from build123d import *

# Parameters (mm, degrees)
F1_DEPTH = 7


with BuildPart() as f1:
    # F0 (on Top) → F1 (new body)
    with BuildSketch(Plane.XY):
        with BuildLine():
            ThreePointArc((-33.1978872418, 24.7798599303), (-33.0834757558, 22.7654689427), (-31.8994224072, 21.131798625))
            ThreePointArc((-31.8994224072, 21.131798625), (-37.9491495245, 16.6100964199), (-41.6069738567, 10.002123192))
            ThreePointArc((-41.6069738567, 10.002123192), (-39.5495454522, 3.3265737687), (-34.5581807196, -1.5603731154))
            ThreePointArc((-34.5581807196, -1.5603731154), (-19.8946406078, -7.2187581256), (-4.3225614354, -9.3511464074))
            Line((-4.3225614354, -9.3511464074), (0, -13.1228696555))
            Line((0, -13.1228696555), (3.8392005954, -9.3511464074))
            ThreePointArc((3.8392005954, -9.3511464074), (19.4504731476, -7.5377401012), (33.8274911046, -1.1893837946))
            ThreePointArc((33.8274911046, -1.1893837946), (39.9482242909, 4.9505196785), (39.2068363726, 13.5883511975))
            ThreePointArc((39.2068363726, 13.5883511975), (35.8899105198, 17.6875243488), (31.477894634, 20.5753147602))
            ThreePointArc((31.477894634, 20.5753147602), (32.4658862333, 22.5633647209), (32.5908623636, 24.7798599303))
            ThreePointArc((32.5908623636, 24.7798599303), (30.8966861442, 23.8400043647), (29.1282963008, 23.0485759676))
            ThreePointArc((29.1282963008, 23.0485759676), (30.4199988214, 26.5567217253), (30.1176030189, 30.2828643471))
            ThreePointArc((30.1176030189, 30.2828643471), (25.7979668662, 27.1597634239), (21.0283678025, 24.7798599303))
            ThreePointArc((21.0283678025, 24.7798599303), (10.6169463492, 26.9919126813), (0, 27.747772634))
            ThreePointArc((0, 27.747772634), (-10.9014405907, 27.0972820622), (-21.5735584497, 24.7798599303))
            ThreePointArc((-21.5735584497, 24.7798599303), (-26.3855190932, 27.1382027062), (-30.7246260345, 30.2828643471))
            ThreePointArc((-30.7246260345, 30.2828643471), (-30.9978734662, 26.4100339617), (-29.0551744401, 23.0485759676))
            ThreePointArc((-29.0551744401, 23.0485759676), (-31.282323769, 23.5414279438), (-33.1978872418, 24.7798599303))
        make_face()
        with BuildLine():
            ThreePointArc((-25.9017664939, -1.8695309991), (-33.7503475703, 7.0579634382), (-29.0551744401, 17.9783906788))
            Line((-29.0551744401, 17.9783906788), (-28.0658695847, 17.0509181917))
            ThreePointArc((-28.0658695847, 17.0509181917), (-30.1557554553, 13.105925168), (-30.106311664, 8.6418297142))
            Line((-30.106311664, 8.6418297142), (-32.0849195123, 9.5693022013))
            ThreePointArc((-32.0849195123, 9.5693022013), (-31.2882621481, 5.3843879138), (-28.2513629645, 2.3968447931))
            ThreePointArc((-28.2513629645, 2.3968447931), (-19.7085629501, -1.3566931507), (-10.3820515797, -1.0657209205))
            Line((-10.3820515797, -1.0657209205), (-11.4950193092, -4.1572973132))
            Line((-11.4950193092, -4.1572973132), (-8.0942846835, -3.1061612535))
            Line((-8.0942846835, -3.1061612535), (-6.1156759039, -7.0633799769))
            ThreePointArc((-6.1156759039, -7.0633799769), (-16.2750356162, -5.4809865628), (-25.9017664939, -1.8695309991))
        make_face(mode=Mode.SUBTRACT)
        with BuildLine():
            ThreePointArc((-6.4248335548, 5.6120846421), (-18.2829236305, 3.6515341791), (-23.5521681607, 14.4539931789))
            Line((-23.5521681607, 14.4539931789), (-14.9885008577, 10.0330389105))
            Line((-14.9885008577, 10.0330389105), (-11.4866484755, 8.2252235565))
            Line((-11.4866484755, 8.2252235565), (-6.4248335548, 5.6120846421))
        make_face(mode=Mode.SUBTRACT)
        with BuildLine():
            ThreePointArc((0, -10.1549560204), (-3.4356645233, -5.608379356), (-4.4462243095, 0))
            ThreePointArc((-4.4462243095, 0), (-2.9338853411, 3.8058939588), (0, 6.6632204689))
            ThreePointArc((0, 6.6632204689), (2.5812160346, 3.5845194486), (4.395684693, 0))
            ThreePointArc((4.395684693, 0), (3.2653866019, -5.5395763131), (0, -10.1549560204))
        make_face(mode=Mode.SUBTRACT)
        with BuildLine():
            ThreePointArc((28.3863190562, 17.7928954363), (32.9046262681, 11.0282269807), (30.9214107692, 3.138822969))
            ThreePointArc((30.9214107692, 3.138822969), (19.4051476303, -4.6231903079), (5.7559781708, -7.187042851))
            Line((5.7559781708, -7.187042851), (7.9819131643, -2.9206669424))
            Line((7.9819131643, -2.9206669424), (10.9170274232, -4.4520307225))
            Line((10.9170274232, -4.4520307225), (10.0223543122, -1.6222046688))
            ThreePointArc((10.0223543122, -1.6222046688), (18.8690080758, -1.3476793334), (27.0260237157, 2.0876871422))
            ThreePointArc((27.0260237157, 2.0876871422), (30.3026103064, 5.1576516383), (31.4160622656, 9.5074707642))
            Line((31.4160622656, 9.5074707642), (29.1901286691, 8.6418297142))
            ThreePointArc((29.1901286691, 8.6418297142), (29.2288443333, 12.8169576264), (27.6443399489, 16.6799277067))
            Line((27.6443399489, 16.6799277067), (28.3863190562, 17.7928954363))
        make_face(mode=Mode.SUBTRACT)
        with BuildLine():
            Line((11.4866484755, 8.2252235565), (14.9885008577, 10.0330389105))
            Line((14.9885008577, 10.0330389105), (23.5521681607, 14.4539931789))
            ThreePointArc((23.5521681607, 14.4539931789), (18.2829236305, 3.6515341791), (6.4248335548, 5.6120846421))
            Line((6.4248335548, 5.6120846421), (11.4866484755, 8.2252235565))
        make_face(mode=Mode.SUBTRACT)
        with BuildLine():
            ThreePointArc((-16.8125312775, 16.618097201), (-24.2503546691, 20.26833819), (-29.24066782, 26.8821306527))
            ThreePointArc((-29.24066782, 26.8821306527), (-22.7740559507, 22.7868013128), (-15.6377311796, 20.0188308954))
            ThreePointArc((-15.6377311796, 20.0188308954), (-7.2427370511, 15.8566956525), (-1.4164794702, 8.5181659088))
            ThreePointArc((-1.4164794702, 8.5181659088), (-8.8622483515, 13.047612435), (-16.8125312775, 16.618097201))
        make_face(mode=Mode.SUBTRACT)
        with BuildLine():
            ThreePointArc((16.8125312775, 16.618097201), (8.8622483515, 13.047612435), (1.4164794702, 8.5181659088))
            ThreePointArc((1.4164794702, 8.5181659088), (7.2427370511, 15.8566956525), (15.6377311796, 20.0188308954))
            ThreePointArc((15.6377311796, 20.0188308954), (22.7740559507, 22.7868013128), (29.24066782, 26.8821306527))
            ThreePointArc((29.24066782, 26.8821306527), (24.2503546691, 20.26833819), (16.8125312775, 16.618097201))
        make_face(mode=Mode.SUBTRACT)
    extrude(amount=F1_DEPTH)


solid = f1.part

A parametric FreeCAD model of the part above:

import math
import FreeCAD as App
import Part
import Sketcher
Q = App.Units.Quantity

doc = App.newDocument("Part")
body = doc.addObject("PartDesign::Body", "Body")

# Sketch on XY plane
sketch1 = doc.addObject("Sketcher::SketchObject", "Sketch")
body.addObject(sketch1)
sketch1.AttachmentSupport = (doc.XY_Plane, [""])
sketch1.MapMode = "FlatFace"
sketch1.addGeometry(Part.ArcOfCircle(Part.Circle(App.Vector(-29.705596, 23.967767, 0), App.Vector(0, 0, 1), 3.585469), math.radians(166.909164), math.radians(232.275465)), False)
sketch1.addGeometry(Part.ArcOfCircle(Part.Circle(App.Vector(-24.404402, 4.796065, 0), App.Vector(0, 0, 1), 17.973077), math.radians(114.646195), math.radians(163.162477)), False)
sketch1.addGeometry(Part.ArcOfCircle(Part.Circle(App.Vector(-27.424256, 10.71846, 0), App.Vector(0, 0, 1), 14.200796), math.radians(-177.108579), math.radians(-120.156317)), False)
sketch1.addGeometry(Part.ArcOfCircle(Part.Circle(App.Vector(-2.965927, 58.480773, 0), App.Vector(0, 0, 1), 67.845484), math.radians(-117.752301), math.radians(-91.14576)), False)
sketch1.addGeometry(Part.LineSegment(App.Vector(-4.322561, -9.351146, 0), App.Vector(0, -13.12287, 0)), False)
sketch1.addGeometry(Part.LineSegment(App.Vector(0, -13.12287, 0), App.Vector(3.839201, -9.351146, 0)), False)
sketch1.addGeometry(Part.ArcOfCircle(Part.Circle(App.Vector(5.649076, 43.171934, 0), App.Vector(0, 0, 1), 52.554254), math.radians(-91.973555), math.radians(-57.576189)), False)
sketch1.addGeometry(Part.ArcOfCircle(Part.Circle(App.Vector(30.276646, 8.471138, 0), App.Vector(0, 0, 1), 10.292433), math.radians(-69.818468), math.radians(29.813746)), False)
sketch1.addGeometry(Part.ArcOfCircle(Part.Circle(App.Vector(24.47147, 5.056506, 0), App.Vector(0, 0, 1), 17.027137), math.radians(30.071038), math.radians(65.701797)), False)
sketch1.addGeometry(Part.ArcOfCircle(Part.Circle(App.Vector(27.129077, 23.976049, 0), App.Vector(0, 0, 1), 5.520617), math.radians(-38.025074), math.radians(8.372117)), False)
sketch1.addGeometry(Part.ArcOfCircle(Part.Circle(App.Vector(20.781118, 44.071129, 0), App.Vector(0, 0, 1), 22.619088), math.radians(-68.34404), math.radians(-58.525833)), False)
sketch1.addGeometry(Part.ArcOfCircle(Part.Circle(App.Vector(21.813868, 27.733631, 0), App.Vector(0, 0, 1), 8.686231), math.radians(-32.640471), math.radians(17.066399)), False)
sketch1.addGeometry(Part.ArcOfCircle(Part.Circle(App.Vector(8.860169, 55.135687, 0), App.Vector(0, 0, 1), 32.703843), math.radians(-68.156512), math.radians(-49.458544)), False)
sketch1.addGeometry(Part.ArcOfCircle(Part.Circle(App.Vector(-0.149081, -49.287951, 0), App.Vector(0, 0, 1), 77.035867), math.radians(74.043722), math.radians(89.889121)), False)
sketch1.addGeometry(Part.ArcOfCircle(Part.Circle(App.Vector(-1.24137, -43.12112, 0), App.Vector(0, 0, 1), 70.879764), math.radians(88.996485), math.radians(106.66974)), False)
sketch1.addGeometry(Part.ArcOfCircle(Part.Circle(App.Vector(-10.256509, 53.95949, 0), App.Vector(0, 0, 1), 31.297386), math.radians(-130.842964), math.radians(-111.198322)), False)
sketch1.addGeometry(Part.ArcOfCircle(Part.Circle(App.Vector(-24.539533, 27.900421, 0), App.Vector(0, 0, 1), 6.628078), math.radians(158.933752), math.radians(227.055488)), False)
sketch1.addGeometry(Part.ArcOfCircle(Part.Circle(App.Vector(-28.799517, 29.482426, 0), App.Vector(0, 0, 1), 6.438928), math.radians(-133.085617), math.radians(-92.275525)), False)
sketch1.addGeometry(Part.ArcOfCircle(Part.Circle(App.Vector(-3.480122, 43.261541, 0), App.Vector(0, 0, 1), 50.393887), math.radians(-116.418724), math.radians(-92.997885)), False)
sketch1.addGeometry(Part.ArcOfCircle(Part.Circle(App.Vector(-22.763091, 8.803602, 0), App.Vector(0, 0, 1), 11.125064), math.radians(124.442385), math.radians(253.61284)), False)
sketch1.addGeometry(Part.LineSegment(App.Vector(-29.055174, 17.978391, 0), App.Vector(-28.06587, 17.050918, 0)), False)
sketch1.addGeometry(Part.ArcOfCircle(Part.Circle(App.Vector(-21.357497, 10.971052, 0), App.Vector(0, 0, 1), 9.053565), math.radians(137.813664), math.radians(194.908212)), False)
sketch1.addGeometry(Part.LineSegment(App.Vector(-30.106312, 8.64183, 0), App.Vector(-32.08492, 9.569302, 0)), False)
sketch1.addGeometry(Part.ArcOfCircle(Part.Circle(App.Vector(-24.987287, 8.752152, 0), App.Vector(0, 0, 1), 7.144517), math.radians(173.432452), math.radians(242.81504)), False)
sketch1.addGeometry(Part.ArcOfCircle(Part.Circle(App.Vector(-15.688089, 19.391824, 0), App.Vector(0, 0, 1), 21.134455), math.radians(-126.473089), math.radians(-75.459694)), False)
sketch1.addGeometry(Part.LineSegment(App.Vector(-10.382052, -1.065721, 0), App.Vector(-11.495019, -4.157297, 0)), False)
sketch1.addGeometry(Part.LineSegment(App.Vector(-11.495019, -4.157297, 0), App.Vector(-8.094285, -3.106161, 0)), False)
sketch1.addGeometry(Part.LineSegment(App.Vector(-8.094285, -3.106161, 0), App.Vector(-6.115676, -7.06338, 0)), False)
sketch1.addGeometry(Part.ArcOfCircle(Part.Circle(App.Vector(-9.343193, -0.081814, 0), App.Vector(0, 0, 1), 13.739121), math.radians(-47.152998), math.radians(0.341186)), False)
sketch1.addGeometry(Part.ArcOfCircle(Part.Circle(App.Vector(7.801403, -0.688366, 0), App.Vector(0, 0, 1), 12.266957), math.radians(176.783133), math.radians(230.508115)), False)
sketch1.addGeometry(Part.ArcOfCircle(Part.Circle(App.Vector(5.229637, -1.64145, 0), App.Vector(0, 0, 1), 9.814104), math.radians(122.199541), math.radians(170.371793)), False)
sketch1.addGeometry(Part.ArcOfCircle(Part.Circle(App.Vector(-12.086721, -6.091826, 0), App.Vector(0, 0, 1), 17.572138), math.radians(20.284096), math.radians(46.541075)), False)
sketch1.addGeometry(Part.LineSegment(App.Vector(27.64434, 16.679928, 0), App.Vector(28.386319, 17.792895, 0)), False)
sketch1.addGeometry(Part.ArcOfCircle(Part.Circle(App.Vector(23.021878, 9.318554, 0), App.Vector(0, 0, 1), 10.029541), math.radians(-38.035743), math.radians(57.665309)), False)
sketch1.addGeometry(Part.ArcOfCircle(Part.Circle(App.Vector(6.374478, 27.13419, 0), App.Vector(0, 0, 1), 34.326806), math.radians(-91.03241), math.radians(-44.349)), False)
sketch1.addGeometry(Part.LineSegment(App.Vector(5.755978, -7.187043, 0), App.Vector(7.981913, -2.920667, 0)), False)
sketch1.addGeometry(Part.LineSegment(App.Vector(7.981913, -2.920667, 0), App.Vector(10.917027, -4.452031, 0)), False)
sketch1.addGeometry(Part.LineSegment(App.Vector(10.917027, -4.452031, 0), App.Vector(10.022354, -1.622205, 0)), False)
sketch1.addGeometry(Part.ArcOfCircle(Part.Circle(App.Vector(13.70728, 22.310239, 0), App.Vector(0, 0, 1), 24.21447), math.radians(-98.753204), math.radians(-56.630762)), False)
sketch1.addGeometry(Part.ArcOfCircle(Part.Circle(App.Vector(23.399163, 9.242191, 0), App.Vector(0, 0, 1), 8.021287), math.radians(-63.118006), math.radians(1.89523)), False)
sketch1.addGeometry(Part.LineSegment(App.Vector(31.416062, 9.507471, 0), App.Vector(29.190129, 8.64183, 0)), False)
sketch1.addGeometry(Part.ArcOfCircle(Part.Circle(App.Vector(18.871983, 10.825253, 0), App.Vector(0, 0, 1), 10.546633), math.radians(-11.9481), math.radians(33.719163)), False)
sketch1.addGeometry(Part.LineSegment(App.Vector(-11.486648, 8.225224, 0), App.Vector(-6.424834, 5.612085, 0)), False)
sketch1.addGeometry(Part.ArcOfCircle(Part.Circle(App.Vector(-13.66936, 12.588298, 0), App.Vector(0, 0, 1), 10.057371), math.radians(169.309408), math.radians(316.080913)), False)
sketch1.addGeometry(Part.LineSegment(App.Vector(-23.552168, 14.453993, 0), App.Vector(-14.988501, 10.033039, 0)), False)
sketch1.addGeometry(Part.LineSegment(App.Vector(-14.988501, 10.033039, 0), App.Vector(-11.486648, 8.225224, 0)), False)
sketch1.addGeometry(Part.ArcOfCircle(Part.Circle(App.Vector(-41.499309, -48.987713, 0), App.Vector(0, 0, 1), 70.096785), math.radians(55.122677), math.radians(69.379208)), False)
sketch1.addGeometry(Part.ArcOfCircle(Part.Circle(App.Vector(-12.877502, 34.039081, 0), App.Vector(0, 0, 1), 17.859874), math.radians(-156.376309), math.radians(-102.728294)), False)
sketch1.addGeometry(Part.ArcOfCircle(Part.Circle(App.Vector(-5.022644, 57.969781, 0), App.Vector(0, 0, 1), 39.407546), math.radians(-127.919445), math.radians(-105.626595)), False)
sketch1.addGeometry(Part.ArcOfCircle(Part.Circle(App.Vector(-20.757523, -0.855136, 0), App.Vector(0, 0, 1), 21.492668), math.radians(25.856345), math.radians(76.219017)), False)
sketch1.addGeometry(Part.LineSegment(App.Vector(6.424834, 5.612085, 0), App.Vector(11.486648, 8.225224, 0)), False)
sketch1.addGeometry(Part.LineSegment(App.Vector(11.486648, 8.225224, 0), App.Vector(14.988501, 10.033039, 0)), False)
sketch1.addGeometry(Part.LineSegment(App.Vector(14.988501, 10.033039, 0), App.Vector(23.552168, 14.453993, 0)), False)
sketch1.addGeometry(Part.ArcOfCircle(Part.Circle(App.Vector(13.66936, 12.588298, 0), App.Vector(0, 0, 1), 10.057371), math.radians(-136.080913), math.radians(10.690592)), False)
sketch1.addGeometry(Part.ArcOfCircle(Part.Circle(App.Vector(12.877502, 34.039081, 0), App.Vector(0, 0, 1), 17.859874), math.radians(-77.271706), math.radians(-23.623691)), False)
sketch1.addGeometry(Part.ArcOfCircle(Part.Circle(App.Vector(41.499309, -48.987713, 0), App.Vector(0, 0, 1), 70.096785), math.radians(110.620792), math.radians(124.877323)), False)
sketch1.addGeometry(Part.ArcOfCircle(Part.Circle(App.Vector(20.757523, -0.855136, 0), App.Vector(0, 0, 1), 21.492668), math.radians(103.780983), math.radians(154.143655)), False)
sketch1.addGeometry(Part.ArcOfCircle(Part.Circle(App.Vector(5.022644, 57.969781, 0), App.Vector(0, 0, 1), 39.407546), math.radians(-74.373405), math.radians(-52.080555)), False)
sketch1.addConstraint(Sketcher.Constraint("Coincident", 0, 2, 1, 1))
sketch1.addConstraint(Sketcher.Constraint("Coincident", 1, 2, 2, 1))
sketch1.addConstraint(Sketcher.Constraint("Coincident", 2, 2, 3, 1))
sketch1.addConstraint(Sketcher.Constraint("Coincident", 3, 2, 4, 1))
sketch1.addConstraint(Sketcher.Constraint("Coincident", 4, 2, 5, 1))
sketch1.addConstraint(Sketcher.Constraint("Coincident", 5, 2, 6, 1))
sketch1.addConstraint(Sketcher.Constraint("Coincident", 6, 2, 7, 1))
sketch1.addConstraint(Sketcher.Constraint("Coincident", 7, 2, 8, 1))
sketch1.addConstraint(Sketcher.Constraint("Coincident", 8, 2, 9, 1))
sketch1.addConstraint(Sketcher.Constraint("Coincident", 9, 2, 10, 2))
sketch1.addConstraint(Sketcher.Constraint("Coincident", 10, 1, 11, 1))
sketch1.addConstraint(Sketcher.Constraint("Coincident", 11, 2, 12, 2))
sketch1.addConstraint(Sketcher.Constraint("Coincident", 12, 1, 13, 1))
sketch1.addConstraint(Sketcher.Constraint("Coincident", 13, 2, 14, 1))
sketch1.addConstraint(Sketcher.Constraint("Coincident", 14, 2, 15, 2))
sketch1.addConstraint(Sketcher.Constraint("Coincident", 15, 1, 16, 1))
sketch1.addConstraint(Sketcher.Constraint("Coincident", 16, 2, 17, 2))
sketch1.addConstraint(Sketcher.Constraint("Coincident", 17, 1, 0, 1))
sketch1.addConstraint(Sketcher.Constraint("Coincident", 18, 1, 19, 2))
sketch1.addConstraint(Sketcher.Constraint("Coincident", 19, 1, 20, 1))
sketch1.addConstraint(Sketcher.Constraint("Coincident", 20, 2, 21, 1))
sketch1.addConstraint(Sketcher.Constraint("Coincident", 21, 2, 22, 1))
sketch1.addConstraint(Sketcher.Constraint("Coincident", 22, 2, 23, 1))
sketch1.addConstraint(Sketcher.Constraint("Coincident", 23, 2, 24, 1))
sketch1.addConstraint(Sketcher.Constraint("Coincident", 24, 2, 25, 1))
sketch1.addConstraint(Sketcher.Constraint("Coincident", 25, 2, 26, 1))
sketch1.addConstraint(Sketcher.Constraint("Coincident", 26, 2, 27, 1))
sketch1.addConstraint(Sketcher.Constraint("Coincident", 27, 2, 18, 2))
sketch1.addConstraint(Sketcher.Constraint("Coincident", 28, 1, 29, 2))
sketch1.addConstraint(Sketcher.Constraint("Coincident", 29, 1, 30, 2))
sketch1.addConstraint(Sketcher.Constraint("Coincident", 30, 1, 31, 2))
sketch1.addConstraint(Sketcher.Constraint("Coincident", 31, 1, 28, 2))
sketch1.addConstraint(Sketcher.Constraint("Coincident", 32, 2, 33, 2))
sketch1.addConstraint(Sketcher.Constraint("Coincident", 33, 1, 34, 2))
sketch1.addConstraint(Sketcher.Constraint("Coincident", 34, 1, 35, 1))
sketch1.addConstraint(Sketcher.Constraint("Coincident", 35, 2, 36, 1))
sketch1.addConstraint(Sketcher.Constraint("Coincident", 36, 2, 37, 1))
sketch1.addConstraint(Sketcher.Constraint("Coincident", 37, 2, 38, 1))
sketch1.addConstraint(Sketcher.Constraint("Coincident", 38, 2, 39, 1))
sketch1.addConstraint(Sketcher.Constraint("Coincident", 39, 2, 40, 1))
sketch1.addConstraint(Sketcher.Constraint("Coincident", 40, 2, 41, 1))
sketch1.addConstraint(Sketcher.Constraint("Coincident", 41, 2, 32, 1))
sketch1.addConstraint(Sketcher.Constraint("Coincident", 42, 2, 43, 2))
sketch1.addConstraint(Sketcher.Constraint("Coincident", 43, 1, 44, 1))
sketch1.addConstraint(Sketcher.Constraint("Coincident", 44, 2, 45, 1))
sketch1.addConstraint(Sketcher.Constraint("Coincident", 45, 2, 42, 1))
sketch1.addConstraint(Sketcher.Constraint("Coincident", 46, 2, 47, 2))
sketch1.addConstraint(Sketcher.Constraint("Coincident", 47, 1, 48, 1))
sketch1.addConstraint(Sketcher.Constraint("Coincident", 48, 2, 49, 2))
sketch1.addConstraint(Sketcher.Constraint("Coincident", 49, 1, 46, 1))
sketch1.addConstraint(Sketcher.Constraint("Coincident", 50, 2, 51, 1))
sketch1.addConstraint(Sketcher.Constraint("Coincident", 51, 2, 52, 1))
sketch1.addConstraint(Sketcher.Constraint("Coincident", 52, 2, 53, 2))
sketch1.addConstraint(Sketcher.Constraint("Coincident", 53, 1, 50, 1))
sketch1.addConstraint(Sketcher.Constraint("Coincident", 54, 1, 55, 1))
sketch1.addConstraint(Sketcher.Constraint("Coincident", 55, 2, 56, 2))
sketch1.addConstraint(Sketcher.Constraint("Coincident", 56, 1, 57, 1))
sketch1.addConstraint(Sketcher.Constraint("Coincident", 57, 2, 54, 2))
sketch1.addConstraint(Sketcher.Constraint("Equal", 43, 53))
sketch1.addConstraint(Sketcher.Constraint("Equal", 47, 54))
sketch1.addConstraint(Sketcher.Constraint("Equal", 46, 55))
sketch1.addConstraint(Sketcher.Constraint("Equal", 49, 56))
sketch1.addConstraint(Sketcher.Constraint("Equal", 48, 57))
sketch1.addConstraint(Sketcher.Constraint("Symmetric", 43, 3, 53, 3, -2))
sketch1.addConstraint(Sketcher.Constraint("Symmetric", 47, 3, 54, 3, -2))
sketch1.addConstraint(Sketcher.Constraint("Symmetric", 46, 3, 55, 3, -2))
sketch1.addConstraint(Sketcher.Constraint("Symmetric", 49, 3, 56, 3, -2))
sketch1.addConstraint(Sketcher.Constraint("Symmetric", 48, 3, 57, 3, -2))
sketch1.addConstraint(Sketcher.Constraint("Symmetric", 45, 2, 50, 2, -2))
sketch1.addConstraint(Sketcher.Constraint("Symmetric", 44, 2, 51, 2, -2))
sketch1.addConstraint(Sketcher.Constraint("PointOnObject", 4, 2, -2))
sketch1.addConstraint(Sketcher.Constraint("PointOnObject", 13, 2, -2))
sketch1.addConstraint(Sketcher.Constraint("PointOnObject", 28, 1, -2))
sketch1.addConstraint(Sketcher.Constraint("PointOnObject", 29, 1, -1))
sketch1.addConstraint(Sketcher.Constraint("PointOnObject", 30, 1, -2))
sketch1.addConstraint(Sketcher.Constraint("PointOnObject", 31, 1, -1))
sketch1.addConstraint(Sketcher.Constraint("Perpendicular", 35, 36))
sketch1.addConstraint(Sketcher.Constraint("Parallel", 42, 44))
sketch1.addConstraint(Sketcher.Constraint("Parallel", 44, 45))
sketch1.addConstraint(Sketcher.Constraint("Parallel", 50, 51))
sketch1.addConstraint(Sketcher.Constraint("Parallel", 51, 52))
sketch1.addConstraint(Sketcher.Constraint("Horizontal", 3, 2, 5, 2))
sketch1.addConstraint(Sketcher.Constraint("Horizontal", 9, 2, 12, 1))
sketch1.addConstraint(Sketcher.Constraint("Horizontal", 12, 1, 14, 2))
sketch1.addConstraint(Sketcher.Constraint("Horizontal", 11, 2, 15, 1))
sketch1.addConstraint(Sketcher.Constraint("Horizontal", 10, 1, 16, 2))
sketch1.addConstraint(Sketcher.Constraint("Horizontal", 14, 2, 17, 1))
sketch1.addConstraint(Sketcher.Constraint("Horizontal", 21, 2, 40, 2))
sketch1.addConstraint(Sketcher.Constraint("Vertical", 16, 2, 19, 1))
sketch1.addConstraint(Sketcher.Constraint("Radius", 0, Q("3.585469 mm")))
sketch1.addConstraint(Sketcher.Constraint("Radius", 11, Q("8.686231 mm")))
sketch1.addConstraint(Sketcher.Constraint("Radius", 28, Q("13.739121 mm")))
sketch1.addConstraint(Sketcher.Constraint("Radius", 31, Q("17.572138 mm")))
sketch1.addConstraint(Sketcher.Constraint("Radius", 33, Q("10.029541 mm")))
sketch1.addConstraint(Sketcher.Constraint("Radius", 38, Q("24.21447 mm")))
sketch1.addConstraint(Sketcher.Constraint("Radius", 43, Q("10.057371 mm")))
sketch1.addConstraint(Sketcher.Constraint("Radius", 1, Q("17.973077 mm")))
sketch1.addConstraint(Sketcher.Constraint("Radius", 2, Q("14.200796 mm")))
sketch1.addConstraint(Sketcher.Constraint("Radius", 3, Q("67.845484 mm")))
sketch1.addConstraint(Sketcher.Constraint("Radius", 6, Q("52.554254 mm")))
sketch1.addConstraint(Sketcher.Constraint("Radius", 7, Q("10.292433 mm")))
sketch1.addConstraint(Sketcher.Constraint("Radius", 8, Q("17.027137 mm")))
sketch1.addConstraint(Sketcher.Constraint("Radius", 9, Q("5.520617 mm")))
sketch1.addConstraint(Sketcher.Constraint("Radius", 10, Q("22.619088 mm")))
sketch1.addConstraint(Sketcher.Constraint("Radius", 12, Q("32.703843 mm")))
sketch1.addConstraint(Sketcher.Constraint("Radius", 13, Q("77.035867 mm")))
sketch1.addConstraint(Sketcher.Constraint("Radius", 14, Q("70.879764 mm")))
sketch1.addConstraint(Sketcher.Constraint("Radius", 15, Q("31.297386 mm")))
sketch1.addConstraint(Sketcher.Constraint("Radius", 16, Q("6.628078 mm")))
sketch1.addConstraint(Sketcher.Constraint("Radius", 17, Q("6.438928 mm")))
sketch1.addConstraint(Sketcher.Constraint("Radius", 18, Q("50.393887 mm")))
sketch1.addConstraint(Sketcher.Constraint("Radius", 19, Q("11.125064 mm")))
sketch1.addConstraint(Sketcher.Constraint("Radius", 21, Q("9.053565 mm")))
sketch1.addConstraint(Sketcher.Constraint("Radius", 23, Q("7.144517 mm")))
sketch1.addConstraint(Sketcher.Constraint("Radius", 24, Q("21.134455 mm")))
sketch1.addConstraint(Sketcher.Constraint("Radius", 29, Q("12.266957 mm")))
sketch1.addConstraint(Sketcher.Constraint("Radius", 30, Q("9.814104 mm")))
sketch1.addConstraint(Sketcher.Constraint("Radius", 34, Q("34.326806 mm")))
sketch1.addConstraint(Sketcher.Constraint("Radius", 39, Q("8.021287 mm")))
sketch1.addConstraint(Sketcher.Constraint("Radius", 41, Q("10.546633 mm")))
sketch1.addConstraint(Sketcher.Constraint("Radius", 46, Q("70.096785 mm")))
sketch1.addConstraint(Sketcher.Constraint("Radius", 47, Q("17.859874 mm")))
sketch1.addConstraint(Sketcher.Constraint("Radius", 48, Q("39.407546 mm")))
sketch1.addConstraint(Sketcher.Constraint("Radius", 49, Q("21.492668 mm")))
sketch1.addConstraint(Sketcher.Constraint("Distance", 22, Q("2.185199 mm")))
sketch1.addConstraint(Sketcher.Constraint("DistanceY", -1, 1, 0, 2, Q("21.131799 mm")))
sketch1.addConstraint(Sketcher.Constraint("DistanceX", -1, 1, 5, 2, Q("3.839201 mm")))
sketch1.addConstraint(Sketcher.Constraint("DistanceX", 44, 2, -1, 1, Q("14.988501 mm")))
sketch1.addConstraint(Sketcher.Constraint("Distance", 4, Q("5.736762 mm")))
sketch1.addConstraint(Sketcher.Constraint("Distance", 20, Q("1.356071 mm")))
sketch1.addConstraint(Sketcher.Constraint("Distance", 25, Q("3.285809 mm")))
sketch1.addConstraint(Sketcher.Constraint("Distance", 32, Q("1.337621 mm")))
sketch1.addConstraint(Sketcher.Constraint("Distance", 40, Q("2.388329 mm")))
sketch1.addConstraint(Sketcher.Constraint("Distance", 42, Q("5.696531 mm")))
sketch1.addConstraint(Sketcher.Constraint("Distance", 44, Q("9.637491 mm")))
sketch1.addConstraint(Sketcher.Constraint("Distance", 45, Q("3.94096 mm")))
sketch1.addConstraint(Sketcher.Constraint("DistanceY", -1, 1, 2, 3, Q("10.71846 mm")))
sketch1.addConstraint(Sketcher.Constraint("DistanceX", -1, 1, 8, 3, Q("24.47147 mm")))
sketch1.addConstraint(Sketcher.Constraint("DistanceY", -1, 1, 9, 3, Q("23.976049 mm")))
sketch1.addConstraint(Sketcher.Constraint("DistanceX", -1, 1, 10, 3, Q("20.781118 mm")))
sketch1.addConstraint(Sketcher.Constraint("DistanceY", -1, 1, 10, 3, Q("44.071129 mm")))
sketch1.addConstraint(Sketcher.Constraint("DistanceY", -1, 1, 11, 3, Q("27.733631 mm")))
sketch1.addConstraint(Sketcher.Constraint("DistanceX", -1, 1, 12, 3, Q("8.860169 mm")))
sketch1.addConstraint(Sketcher.Constraint("DistanceX", 13, 3, -1, 1, Q("0.149081 mm")))
sketch1.addConstraint(Sketcher.Constraint("DistanceY", 13, 3, -1, 1, Q("49.287951 mm")))
sketch1.addConstraint(Sketcher.Constraint("DistanceX", 14, 3, -1, 1, Q("1.24137 mm")))
sketch1.addConstraint(Sketcher.Constraint("DistanceX", 15, 3, -1, 1, Q("10.256509 mm")))
sketch1.addConstraint(Sketcher.Constraint("DistanceY", -1, 1, 15, 3, Q("53.95949 mm")))
sketch1.addConstraint(Sketcher.Constraint("DistanceY", -1, 1, 16, 3, Q("27.900421 mm")))
sketch1.addConstraint(Sketcher.Constraint("DistanceX", 18, 3, -1, 1, Q("3.480122 mm")))
sketch1.addConstraint(Sketcher.Constraint("DistanceY", -1, 1, 18, 3, Q("43.261541 mm")))
sketch1.addConstraint(Sketcher.Constraint("DistanceX", 19, 3, -1, 1, Q("22.763091 mm")))
sketch1.addConstraint(Sketcher.Constraint("DistanceY", -1, 1, 23, 3, Q("8.752152 mm")))
sketch1.addConstraint(Sketcher.Constraint("DistanceX", 24, 3, -1, 1, Q("15.688089 mm")))
sketch1.addConstraint(Sketcher.Constraint("DistanceY", 30, 3, -1, 1, Q("1.64145 mm")))
sketch1.addConstraint(Sketcher.Constraint("DistanceX", 31, 3, -1, 1, Q("12.086721 mm")))
sketch1.addConstraint(Sketcher.Constraint("DistanceX", -1, 1, 33, 3, Q("23.021878 mm")))
sketch1.addConstraint(Sketcher.Constraint("DistanceY", -1, 1, 34, 3, Q("27.13419 mm")))
sketch1.addConstraint(Sketcher.Constraint("DistanceX", -1, 1, 38, 3, Q("13.70728 mm")))
sketch1.addConstraint(Sketcher.Constraint("DistanceY", -1, 1, 38, 3, Q("22.310239 mm")))
sketch1.addConstraint(Sketcher.Constraint("DistanceY", -1, 1, 39, 3, Q("9.242191 mm")))
sketch1.addConstraint(Sketcher.Constraint("DistanceX", 43, 3, -1, 1, Q("13.66936 mm")))
sketch1.addConstraint(Sketcher.Constraint("DistanceX", 46, 3, -1, 1, Q("41.499309 mm")))
sketch1.addConstraint(Sketcher.Constraint("DistanceY", -1, 1, 47, 3, Q("34.039081 mm")))
sketch1.addConstraint(Sketcher.Constraint("DistanceY", -1, 1, 48, 3, Q("57.969781 mm")))
sketch1.addConstraint(Sketcher.Constraint("DistanceX", 2, 2, -1, 1, Q("34.558181 mm")))
sketch1.addConstraint(Sketcher.Constraint("DistanceX", 3, 2, -1, 1, Q("4.322561 mm")))
sketch1.addConstraint(Sketcher.Constraint("DistanceY", 4, 2, -1, 1, Q("13.12287 mm")))
sketch1.addConstraint(Sketcher.Constraint("DistanceX", -1, 1, 6, 2, Q("33.827491 mm")))
sketch1.addConstraint(Sketcher.Constraint("DistanceY", -1, 1, 7, 2, Q("13.588351 mm")))
sketch1.addConstraint(Sketcher.Constraint("DistanceY", 18, 1, -1, 1, Q("1.869531 mm")))
sketch1.addConstraint(Sketcher.Constraint("DistanceY", -1, 1, 19, 1, Q("17.978391 mm")))
sketch1.addConstraint(Sketcher.Constraint("DistanceX", 20, 2, -1, 1, Q("28.06587 mm")))
sketch1.addConstraint(Sketcher.Constraint("DistanceX", 21, 2, -1, 1, Q("30.106312 mm")))
sketch1.addConstraint(Sketcher.Constraint("DistanceY", -1, 1, 21, 2, Q("8.64183 mm")))
sketch1.addConstraint(Sketcher.Constraint("DistanceX", 22, 2, -1, 1, Q("32.08492 mm")))
sketch1.addConstraint(Sketcher.Constraint("DistanceX", 24, 2, -1, 1, Q("10.382052 mm")))
sketch1.addConstraint(Sketcher.Constraint("DistanceY", 24, 2, -1, 1, Q("1.065721 mm")))
sketch1.addConstraint(Sketcher.Constraint("DistanceX", 25, 2, -1, 1, Q("11.495019 mm")))
sketch1.addConstraint(Sketcher.Constraint("DistanceY", 26, 2, -1, 1, Q("3.106161 mm")))
sketch1.addConstraint(Sketcher.Constraint("DistanceY", 27, 2, -1, 1, Q("7.06338 mm")))
sketch1.addConstraint(Sketcher.Constraint("DistanceY", -1, 1, 30, 1, Q("6.66322 mm")))
sketch1.addConstraint(Sketcher.Constraint("DistanceX", -1, 1, 32, 2, Q("28.386319 mm")))
sketch1.addConstraint(Sketcher.Constraint("DistanceX", -1, 1, 33, 1, Q("30.921411 mm")))
sketch1.addConstraint(Sketcher.Constraint("DistanceX", -1, 1, 34, 1, Q("5.755978 mm")))
sketch1.addConstraint(Sketcher.Constraint("DistanceY", 36, 2, -1, 1, Q("4.452031 mm")))
sketch1.addConstraint(Sketcher.Constraint("DistanceY", -1, 1, 39, 2, Q("9.507471 mm")))
sketch1.addConstraint(Sketcher.Constraint("DistanceX", -1, 1, 40, 2, Q("29.190129 mm")))
sketch1.addConstraint(Sketcher.Constraint("DistanceX", -1, 1, 41, 2, Q("27.64434 mm")))
sketch1.addConstraint(Sketcher.Constraint("DistanceY", -1, 1, 44, 2, Q("10.033039 mm")))
sketch1.addConstraint(Sketcher.Constraint("DistanceX", 46, 2, -1, 1, Q("16.812531 mm")))
sketch1.addConstraint(Sketcher.Constraint("DistanceY", -1, 1, 47, 1, Q("26.882131 mm")))
sketch1.addConstraint(Sketcher.Constraint("DistanceX", 48, 2, -1, 1, Q("15.637731 mm")))
sketch1.addConstraint(Sketcher.Constraint("DistanceY", -1, 1, 48, 2, Q("20.018831 mm")))
sketch1.addConstraint(Sketcher.Constraint("DistanceX", 49, 1, -1, 1, Q("1.416479 mm")))
sketch1.addConstraint(Sketcher.Constraint("Distance", 26, Q("3.559478 mm")))
sketch1.addConstraint(Sketcher.Constraint("Distance", 35, Q("4.812146 mm")))
sketch1.addConstraint(Sketcher.Constraint("Distance", 36, Q("3.310585 mm")))
sketch1.addConstraint(Sketcher.Constraint("Distance", 37, Q("2.967887 mm")))
sketch1.addConstraint(Sketcher.Constraint("DistanceX", 0, 3, -1, 1, Q("29.705596 mm")))
sketch1.addConstraint(Sketcher.Constraint("DistanceY", -1, 1, 0, 3, Q("23.967767 mm")))
sketch1.addConstraint(Sketcher.Constraint("DistanceX", 1, 3, -1, 1, Q("24.404402 mm")))
sketch1.addConstraint(Sketcher.Constraint("DistanceX", 2, 3, -1, 1, Q("27.424256 mm")))
sketch1.addConstraint(Sketcher.Constraint("DistanceX", -1, 1, 6, 3, Q("5.649076 mm")))
sketch1.addConstraint(Sketcher.Constraint("DistanceX", -1, 1, 7, 3, Q("30.276646 mm")))
sketch1.addConstraint(Sketcher.Constraint("DistanceX", 28, 3, -1, 1, Q("9.343193 mm")))
sketch1.addConstraint(Sketcher.Constraint("DistanceY", -1, 1, 33, 3, Q("9.318554 mm")))
pad1 = doc.addObject("PartDesign::Pad", "Pad")
body.addObject(pad1)
pad1.Profile = sketch1
pad1.Length = 7

doc.recompute()
